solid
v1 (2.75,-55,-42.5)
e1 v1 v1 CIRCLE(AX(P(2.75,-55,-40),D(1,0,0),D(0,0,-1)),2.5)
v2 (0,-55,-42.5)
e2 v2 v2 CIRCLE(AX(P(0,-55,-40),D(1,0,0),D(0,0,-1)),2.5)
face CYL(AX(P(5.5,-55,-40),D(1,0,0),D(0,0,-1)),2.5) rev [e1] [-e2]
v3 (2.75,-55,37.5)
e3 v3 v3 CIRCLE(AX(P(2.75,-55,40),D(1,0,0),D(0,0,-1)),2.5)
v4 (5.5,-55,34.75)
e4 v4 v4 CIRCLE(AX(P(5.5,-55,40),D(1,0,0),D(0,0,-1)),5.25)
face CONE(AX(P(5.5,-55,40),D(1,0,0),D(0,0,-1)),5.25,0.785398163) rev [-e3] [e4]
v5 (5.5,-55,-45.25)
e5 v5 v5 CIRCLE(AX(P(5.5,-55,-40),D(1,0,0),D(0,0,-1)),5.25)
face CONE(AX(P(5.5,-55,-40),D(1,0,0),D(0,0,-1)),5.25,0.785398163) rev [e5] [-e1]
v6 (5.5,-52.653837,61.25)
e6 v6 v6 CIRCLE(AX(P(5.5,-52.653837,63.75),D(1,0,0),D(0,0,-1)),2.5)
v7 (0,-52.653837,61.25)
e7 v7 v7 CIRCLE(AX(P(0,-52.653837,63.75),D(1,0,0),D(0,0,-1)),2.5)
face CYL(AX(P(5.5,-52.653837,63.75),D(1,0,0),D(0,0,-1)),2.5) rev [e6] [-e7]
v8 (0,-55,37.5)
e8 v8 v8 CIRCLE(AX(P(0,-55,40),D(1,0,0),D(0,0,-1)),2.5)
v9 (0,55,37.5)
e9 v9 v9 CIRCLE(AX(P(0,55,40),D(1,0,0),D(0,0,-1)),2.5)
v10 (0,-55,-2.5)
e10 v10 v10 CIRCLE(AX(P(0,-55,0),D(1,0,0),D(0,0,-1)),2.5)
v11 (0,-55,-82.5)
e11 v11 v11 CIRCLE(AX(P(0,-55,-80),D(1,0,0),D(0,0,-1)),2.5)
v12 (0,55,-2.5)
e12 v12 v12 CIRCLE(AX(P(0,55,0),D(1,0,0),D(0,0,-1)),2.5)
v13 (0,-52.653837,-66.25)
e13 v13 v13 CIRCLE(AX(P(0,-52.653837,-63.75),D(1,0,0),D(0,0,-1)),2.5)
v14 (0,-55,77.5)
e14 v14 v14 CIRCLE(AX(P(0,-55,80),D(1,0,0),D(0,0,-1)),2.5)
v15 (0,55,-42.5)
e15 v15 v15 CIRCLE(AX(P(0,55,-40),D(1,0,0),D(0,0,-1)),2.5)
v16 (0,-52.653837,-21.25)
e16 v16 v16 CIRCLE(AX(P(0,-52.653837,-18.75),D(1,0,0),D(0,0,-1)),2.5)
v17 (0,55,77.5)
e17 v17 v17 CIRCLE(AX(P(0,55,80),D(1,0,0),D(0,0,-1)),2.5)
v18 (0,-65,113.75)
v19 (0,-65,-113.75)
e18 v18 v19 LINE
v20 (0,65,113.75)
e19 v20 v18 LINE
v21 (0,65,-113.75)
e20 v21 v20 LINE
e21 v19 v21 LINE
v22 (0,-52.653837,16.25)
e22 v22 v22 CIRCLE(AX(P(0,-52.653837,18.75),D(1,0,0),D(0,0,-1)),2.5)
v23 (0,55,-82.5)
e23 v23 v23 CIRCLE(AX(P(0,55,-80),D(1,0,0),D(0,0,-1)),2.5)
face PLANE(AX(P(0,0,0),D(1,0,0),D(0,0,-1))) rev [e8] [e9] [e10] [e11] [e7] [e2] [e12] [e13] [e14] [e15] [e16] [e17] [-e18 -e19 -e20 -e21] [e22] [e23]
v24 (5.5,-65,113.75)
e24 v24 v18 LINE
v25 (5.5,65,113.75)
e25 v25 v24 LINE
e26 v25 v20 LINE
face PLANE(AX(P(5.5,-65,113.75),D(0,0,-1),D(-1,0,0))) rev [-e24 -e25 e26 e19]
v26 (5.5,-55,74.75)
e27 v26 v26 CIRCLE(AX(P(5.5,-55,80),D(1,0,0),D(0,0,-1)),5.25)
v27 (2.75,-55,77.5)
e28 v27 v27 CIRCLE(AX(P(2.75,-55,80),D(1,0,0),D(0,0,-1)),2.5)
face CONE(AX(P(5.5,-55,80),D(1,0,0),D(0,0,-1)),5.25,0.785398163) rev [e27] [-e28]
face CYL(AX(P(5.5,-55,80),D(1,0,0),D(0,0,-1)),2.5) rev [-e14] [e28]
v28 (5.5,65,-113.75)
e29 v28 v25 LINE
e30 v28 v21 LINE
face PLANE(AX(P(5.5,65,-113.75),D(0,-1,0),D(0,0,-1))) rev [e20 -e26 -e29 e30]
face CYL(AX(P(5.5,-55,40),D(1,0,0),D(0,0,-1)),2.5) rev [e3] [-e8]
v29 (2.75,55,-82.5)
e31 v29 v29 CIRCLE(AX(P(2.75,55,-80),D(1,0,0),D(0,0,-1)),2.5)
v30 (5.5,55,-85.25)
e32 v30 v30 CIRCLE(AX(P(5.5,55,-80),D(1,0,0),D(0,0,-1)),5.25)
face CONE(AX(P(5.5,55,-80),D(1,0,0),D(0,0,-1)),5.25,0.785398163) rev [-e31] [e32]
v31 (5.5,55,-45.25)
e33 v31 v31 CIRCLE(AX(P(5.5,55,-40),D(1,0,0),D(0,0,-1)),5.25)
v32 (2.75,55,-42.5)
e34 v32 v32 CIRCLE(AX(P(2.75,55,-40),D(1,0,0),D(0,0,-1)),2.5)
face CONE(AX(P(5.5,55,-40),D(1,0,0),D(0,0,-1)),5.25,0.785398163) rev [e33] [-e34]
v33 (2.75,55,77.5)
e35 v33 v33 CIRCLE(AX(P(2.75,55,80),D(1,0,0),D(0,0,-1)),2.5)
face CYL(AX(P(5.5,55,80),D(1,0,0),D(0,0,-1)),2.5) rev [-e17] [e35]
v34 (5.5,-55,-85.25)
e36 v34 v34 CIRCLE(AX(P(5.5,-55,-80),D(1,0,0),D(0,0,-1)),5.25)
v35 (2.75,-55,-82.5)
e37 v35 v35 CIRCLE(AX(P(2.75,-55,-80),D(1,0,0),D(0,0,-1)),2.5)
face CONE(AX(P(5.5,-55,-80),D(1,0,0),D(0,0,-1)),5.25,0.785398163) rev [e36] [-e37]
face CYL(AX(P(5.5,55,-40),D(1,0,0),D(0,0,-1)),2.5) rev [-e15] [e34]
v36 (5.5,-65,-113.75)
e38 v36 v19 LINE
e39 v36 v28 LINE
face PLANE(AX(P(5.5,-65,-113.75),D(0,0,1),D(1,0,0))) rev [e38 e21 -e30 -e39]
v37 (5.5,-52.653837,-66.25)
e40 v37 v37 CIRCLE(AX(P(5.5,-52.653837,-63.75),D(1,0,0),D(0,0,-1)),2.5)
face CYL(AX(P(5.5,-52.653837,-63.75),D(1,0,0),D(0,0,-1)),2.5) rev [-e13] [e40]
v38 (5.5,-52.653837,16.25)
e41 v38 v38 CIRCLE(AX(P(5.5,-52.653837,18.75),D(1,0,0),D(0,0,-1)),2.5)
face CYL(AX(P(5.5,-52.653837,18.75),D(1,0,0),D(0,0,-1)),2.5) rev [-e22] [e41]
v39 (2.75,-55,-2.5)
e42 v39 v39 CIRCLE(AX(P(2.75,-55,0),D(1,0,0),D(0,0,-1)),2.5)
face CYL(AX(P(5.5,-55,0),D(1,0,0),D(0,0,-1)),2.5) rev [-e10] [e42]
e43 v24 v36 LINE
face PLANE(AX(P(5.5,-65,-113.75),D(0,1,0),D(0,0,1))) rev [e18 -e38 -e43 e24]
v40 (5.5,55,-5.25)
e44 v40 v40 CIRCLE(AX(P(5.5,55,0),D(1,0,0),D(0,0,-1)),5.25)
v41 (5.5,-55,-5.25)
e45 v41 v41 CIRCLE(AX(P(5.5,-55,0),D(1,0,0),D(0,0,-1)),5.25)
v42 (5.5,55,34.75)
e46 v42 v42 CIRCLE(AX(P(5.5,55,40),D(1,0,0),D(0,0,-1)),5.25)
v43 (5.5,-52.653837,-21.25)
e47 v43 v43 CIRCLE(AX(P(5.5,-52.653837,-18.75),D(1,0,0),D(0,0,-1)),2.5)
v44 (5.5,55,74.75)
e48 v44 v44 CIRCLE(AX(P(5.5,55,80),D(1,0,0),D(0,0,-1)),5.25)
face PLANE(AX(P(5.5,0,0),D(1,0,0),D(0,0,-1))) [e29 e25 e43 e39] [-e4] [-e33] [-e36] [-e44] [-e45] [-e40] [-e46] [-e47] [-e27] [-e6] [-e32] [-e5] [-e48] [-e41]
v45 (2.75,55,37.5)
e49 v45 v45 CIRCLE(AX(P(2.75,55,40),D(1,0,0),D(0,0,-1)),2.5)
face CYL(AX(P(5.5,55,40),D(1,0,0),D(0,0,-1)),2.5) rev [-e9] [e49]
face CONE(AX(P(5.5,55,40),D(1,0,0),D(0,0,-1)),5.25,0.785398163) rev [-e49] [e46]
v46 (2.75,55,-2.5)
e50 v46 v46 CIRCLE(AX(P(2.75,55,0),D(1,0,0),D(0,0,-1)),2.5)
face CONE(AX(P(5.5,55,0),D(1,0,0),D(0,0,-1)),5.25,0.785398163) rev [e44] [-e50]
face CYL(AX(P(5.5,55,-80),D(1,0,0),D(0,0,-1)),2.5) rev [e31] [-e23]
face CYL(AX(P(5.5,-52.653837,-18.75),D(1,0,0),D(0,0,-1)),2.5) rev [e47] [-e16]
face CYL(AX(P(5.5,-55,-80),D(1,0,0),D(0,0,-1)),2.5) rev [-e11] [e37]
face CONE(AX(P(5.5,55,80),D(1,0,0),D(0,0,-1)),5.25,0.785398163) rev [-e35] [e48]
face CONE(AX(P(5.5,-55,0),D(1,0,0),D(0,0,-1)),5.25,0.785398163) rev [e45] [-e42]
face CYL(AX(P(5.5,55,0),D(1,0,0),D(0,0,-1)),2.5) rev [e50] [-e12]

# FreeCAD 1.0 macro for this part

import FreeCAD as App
import Part
import Sketcher


def add_polygon(sketch, points):
    """Adds a closed chain of lines whose ends are joined by coincident constraints."""
    first, n = sketch.GeometryCount, len(points)
    for a, b in zip(points, points[1:] + points[:1]):
        sketch.addGeometry(Part.LineSegment(App.Vector(*a, 0), App.Vector(*b, 0)), False)
    for i in range(n):
        sketch.addConstraint(Sketcher.Constraint("Coincident", first + i, 2, first + (i + 1) % n, 1))

doc = App.newDocument("Part")
body = doc.addObject("PartDesign::Body", "Body")

# Sketch on YZ plane
sketch1 = body.newObject("Sketcher::SketchObject", "Sketch")
sketch1.AttachmentSupport = (doc.getObject("YZ_Plane"), [""])
sketch1.MapMode = "FlatFace"
add_polygon(sketch1, [(65, 114), (-65, 114), (-65, -114), (65, -114)])  # lines 0-3
sketch1.addConstraint([
    Sketcher.Constraint("Horizontal", 0),
    Sketcher.Constraint("Vertical", 1),
    Sketcher.Constraint("Horizontal", 2),
    Sketcher.Constraint("Vertical", 3),
    Sketcher.Constraint("Symmetric", 0, 2, 2, 2, -1, 1),
    Sketcher.Constraint("DistanceX", 0, 2, 0, 1, 130.0),
    Sketcher.Constraint("DistanceY", 1, 2, 1, 1, 227.5),
])
pad1 = body.newObject("PartDesign::Pad", "Pad")
pad1.Profile = sketch1
pad1.Length = 5.5

# Sketch on YZ plane
sketch2 = body.newObject("Sketcher::SketchObject", "Sketch001")
sketch2.AttachmentSupport = (doc.getObject("YZ_Plane"), [""])
sketch2.MapMode = "FlatFace"
sketch2.AttachmentOffset = App.Placement(App.Vector(0, 0, 5.5), App.Rotation())
sketch2.addGeometry([
    Part.Circle(App.Vector(55, -80, 0), App.Vector(0, 0, 1), 2.5),  # 0
    Part.Circle(App.Vector(55, -40, 0), App.Vector(0, 0, 1), 2.5),  # 1
    Part.Circle(App.Vector(55, 0, 0), App.Vector(0, 0, 1), 2.5),  # 2
    Part.Circle(App.Vector(55, 40, 0), App.Vector(0, 0, 1), 2.5),  # 3
    Part.Circle(App.Vector(55, 80, 0), App.Vector(0, 0, 1), 2.5),  # 4
    Part.Circle(App.Vector(-55, 80, 0), App.Vector(0, 0, 1), 2.5),  # 5
    Part.Circle(App.Vector(-55, 40, 0), App.Vector(0, 0, 1), 2.5),  # 6
    Part.Circle(App.Vector(-55, 0, 0), App.Vector(0, 0, 1), 2.5),  # 7
    Part.Circle(App.Vector(-55, -40, 0), App.Vector(0, 0, 1), 2.5),  # 8
    Part.Circle(App.Vector(-55, -80, 0), App.Vector(0, 0, 1), 2.5),  # 9
], False)
sketch2.addConstraint([
    Sketcher.Constraint("Equal", 0, 1),
    Sketcher.Constraint("Equal", 1, 2),
    Sketcher.Constraint("Equal", 2, 3),
    Sketcher.Constraint("Equal", 3, 4),
    Sketcher.Constraint("Equal", 4, 5),
    Sketcher.Constraint("Equal", 5, 6),
    Sketcher.Constraint("Equal", 6, 7),
    Sketcher.Constraint("Equal", 7, 8),
    Sketcher.Constraint("Equal", 8, 9),
    Sketcher.Constraint("Symmetric", 0, 3, 5, 3, -1, 1),
    Sketcher.Constraint("Symmetric", 1, 3, 6, 3, -1, 1),
    Sketcher.Constraint("Symmetric", 2, 3, 7, 3, -1, 1),
    Sketcher.Constraint("Symmetric", 3, 3, 8, 3, -1, 1),
    Sketcher.Constraint("Symmetric", 4, 3, 9, 3, -1, 1),
    Sketcher.Constraint("Symmetric", 4, 3, 5, 3, -2),
    Sketcher.Constraint("Symmetric", 3, 3, 6, 3, -2),
    Sketcher.Constraint("PointOnObject", 2, 3, -1),
    Sketcher.Constraint("Vertical", 0, 3, 1, 3),
    Sketcher.Constraint("Vertical", 1, 3, 2, 3),
    Sketcher.Constraint("Diameter", 0, 5.0),
    Sketcher.Constraint("DistanceX", -1, 1, 0, 3, 55.0),
    Sketcher.Constraint("DistanceY", 0, 3, -1, 1, 80.0),
    Sketcher.Constraint("DistanceY", 1, 3, -1, 1, 40.0),
])
doc.recompute()
hole = body.newObject("PartDesign::Hole", "Hole")
hole.Profile = sketch2
hole.ThreadType = "None"
hole.Diameter = 5
hole.DepthType = "ThroughAll"
hole.HoleCutType = "Countersink"
hole.HoleCutDiameter = 10.5
hole.HoleCutCountersinkAngle = 90

# Sketch on YZ plane
sketch3 = body.newObject("Sketcher::SketchObject", "Sketch002")
sketch3.AttachmentSupport = (doc.getObject("YZ_Plane"), [""])
sketch3.MapMode = "FlatFace"
sketch3.AttachmentOffset = App.Placement(App.Vector(0, 0, 5.5), App.Rotation())
sketch3.addGeometry([
    Part.Circle(App.Vector(-52.7, 63.8, 0), App.Vector(0, 0, 1), 2.5),
    Part.Circle(App.Vector(-52.7, 18.8, 0), App.Vector(0, 0, 1), 2.5),
    Part.Circle(App.Vector(-52.7, -18.8, 0), App.Vector(0, 0, 1), 2.5),
    Part.Circle(App.Vector(-52.7, -63.8, 0), App.Vector(0, 0, 1), 2.5),
], False)
sketch3.addConstraint([
    Sketcher.Constraint("Equal", 0, 1),
    Sketcher.Constraint("Equal", 1, 2),
    Sketcher.Constraint("Equal", 2, 3),
    Sketcher.Constraint("Symmetric", 1, 3, 2, 3, -1),
    Sketcher.Constraint("Symmetric", 0, 3, 3, 3, -1),
    Sketcher.Constraint("Vertical", 0, 3, 1, 3),
    Sketcher.Constraint("Diameter", 0, 5.0),
    Sketcher.Constraint("DistanceY", 1, 3, 0, 3, 45.0),
    Sketcher.Constraint("DistanceY", 2, 3, 1, 3, 37.5),
    Sketcher.Constraint("DistanceX", 0, 3, -1, 1, 52.653837),
])
doc.recompute()
hole2 = body.newObject("PartDesign::Hole", "Hole001")
hole2.Profile = sketch3
hole2.ThreadType = "None"
hole2.Diameter = 5
hole2.DepthType = "ThroughAll"

doc.recompute()
